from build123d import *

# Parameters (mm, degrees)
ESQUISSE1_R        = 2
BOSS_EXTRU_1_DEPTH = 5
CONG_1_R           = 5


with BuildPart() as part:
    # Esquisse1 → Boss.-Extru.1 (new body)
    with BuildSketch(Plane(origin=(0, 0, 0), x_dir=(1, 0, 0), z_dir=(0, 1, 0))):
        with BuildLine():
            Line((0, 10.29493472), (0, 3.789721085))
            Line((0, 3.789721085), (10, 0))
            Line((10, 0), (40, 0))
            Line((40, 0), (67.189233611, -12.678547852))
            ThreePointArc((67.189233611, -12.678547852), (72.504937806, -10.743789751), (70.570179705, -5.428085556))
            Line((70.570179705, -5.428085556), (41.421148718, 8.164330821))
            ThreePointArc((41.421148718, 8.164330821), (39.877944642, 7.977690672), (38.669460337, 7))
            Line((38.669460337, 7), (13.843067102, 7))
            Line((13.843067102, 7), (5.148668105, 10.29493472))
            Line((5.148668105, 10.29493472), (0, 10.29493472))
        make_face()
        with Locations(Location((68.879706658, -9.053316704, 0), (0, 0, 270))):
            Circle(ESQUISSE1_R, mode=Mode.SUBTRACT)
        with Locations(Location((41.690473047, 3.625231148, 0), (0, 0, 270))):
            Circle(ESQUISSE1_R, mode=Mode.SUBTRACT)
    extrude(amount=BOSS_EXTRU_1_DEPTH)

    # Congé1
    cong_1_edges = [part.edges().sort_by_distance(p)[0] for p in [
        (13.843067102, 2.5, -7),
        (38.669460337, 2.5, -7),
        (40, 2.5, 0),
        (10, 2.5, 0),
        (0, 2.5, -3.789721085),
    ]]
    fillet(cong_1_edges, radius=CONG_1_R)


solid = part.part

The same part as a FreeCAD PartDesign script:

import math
import FreeCAD as App
import Part
import Sketcher
Q = App.Units.Quantity


def edges_at(feature, points):
    """Names of the edges that pass closest to the given points."""
    edges = feature.Shape.Edges
    near = lambda p: min(range(len(edges)), key=lambda i: edges[i].distToShape(Part.Vertex(*p))[0])
    return sorted({f"Edge{near(p) + 1}" for p in points})

doc = App.newDocument("Part")
body = doc.addObject("PartDesign::Body", "Body")

# Sketch on XZ plane
sketch1 = doc.addObject("Sketcher::SketchObject", "Sketch")
body.addObject(sketch1)
sketch1.AttachmentSupport = (doc.XZ_Plane, [""])
sketch1.MapMode = "FlatFace"
sketch1.addGeometry(Part.LineSegment(App.Vector(0, -10.3, 0), App.Vector(0, -3.8, 0)), False)
sketch1.addGeometry(Part.LineSegment(App.Vector(0, -3.8, 0), App.Vector(10, 0, 0)), False)
sketch1.addGeometry(Part.LineSegment(App.Vector(10, 0, 0), App.Vector(40, 0, 0)), False)
sketch1.addGeometry(Part.LineSegment(App.Vector(40, 0, 0), App.Vector(67.2, 12.7, 0)), False)
sketch1.addGeometry(Part.ArcOfCircle(Part.Circle(App.Vector(68.9, 9.1, 0), App.Vector(0, 0, 1), 4), math.radians(-65), math.radians(115)), False)
sketch1.addGeometry(Part.LineSegment(App.Vector(70.6, 5.4, 0), App.Vector(41.4, -8.2, 0)), False)
sketch1.addGeometry(Part.ArcOfCircle(Part.Circle(App.Vector(41, -5.4, 0), App.Vector(0, 0, 1), 2.8), math.radians(-145), math.radians(-81)), False)
sketch1.addGeometry(Part.LineSegment(App.Vector(38.7, -7, 0), App.Vector(13.8, -7, 0)), False)
sketch1.addGeometry(Part.LineSegment(App.Vector(13.8, -7, 0), App.Vector(5.1, -10.3, 0)), False)
sketch1.addGeometry(Part.LineSegment(App.Vector(5.1, -10.3, 0), App.Vector(0, -10.3, 0)), False)
sketch1.addGeometry(Part.Circle(App.Vector(68.9, 9.1, 0), App.Vector(0, 0, 1), 2), False)
sketch1.addGeometry(Part.Circle(App.Vector(41.7, -3.6, 0), App.Vector(0, 0, 1), 2), False)
sketch1.addConstraint(Sketcher.Constraint("Coincident", 0, 2, 1, 1))
sketch1.addConstraint(Sketcher.Constraint("Coincident", 1, 2, 2, 1))
sketch1.addConstraint(Sketcher.Constraint("Coincident", 2, 2, 3, 1))
sketch1.addConstraint(Sketcher.Constraint("Tangent", 3, 2, 4, 2))
sketch1.addConstraint(Sketcher.Constraint("Tangent", 4, 1, 5, 1))
sketch1.addConstraint(Sketcher.Constraint("Coincident", 5, 2, 6, 2))
sketch1.addConstraint(Sketcher.Constraint("Coincident", 6, 1, 7, 1))
sketch1.addConstraint(Sketcher.Constraint("Coincident", 7, 2, 8, 1))
sketch1.addConstraint(Sketcher.Constraint("Coincident", 8, 2, 9, 1))
sketch1.addConstraint(Sketcher.Constraint("Coincident", 9, 2, 0, 1))
sketch1.addConstraint(Sketcher.Constraint("Vertical", 0))
sketch1.addConstraint(Sketcher.Constraint("Horizontal", 2))
sketch1.addConstraint(Sketcher.Constraint("Horizontal", 7))
sketch1.addConstraint(Sketcher.Constraint("Horizontal", 9))
sketch1.addConstraint(Sketcher.Constraint("Coincident", 10, 3, 4, 3))
sketch1.addConstraint(Sketcher.Constraint("Equal", 10, 11))
sketch1.addConstraint(Sketcher.Constraint("PointOnObject", 0, 2, -2))
sketch1.addConstraint(Sketcher.Constraint("PointOnObject", 1, 2, -1))
sketch1.addConstraint(Sketcher.Constraint("Parallel", 3, 5))
sketch1.addConstraint(Sketcher.Constraint("Parallel", 1, 8))
sketch1.addConstraint(Sketcher.Constraint("Diameter", 10, 4.0))
sketch1.addConstraint(Sketcher.Constraint("Radius", 4, 4.0))
sketch1.addConstraint(Sketcher.Constraint("DistanceX", 2, 1, 2, 2, 30.0))
sketch1.addConstraint(Sketcher.Constraint("Angle", 3, Q("25 deg")))
sketch1.addConstraint(Sketcher.Constraint("Distance", 3, 30.0))
sketch1.addConstraint(Sketcher.Constraint("DistanceX", -1, 1, 1, 2, 10.0))
sketch1.addConstraint(Sketcher.Constraint("DistanceY", 6, 1, -1, 1, 7.0))
sketch1.addConstraint(Sketcher.Constraint("Radius", 6, 2.813095))
sketch1.addConstraint(Sketcher.Constraint("DistanceX", 9, 2, 9, 1, 5.148668))
sketch1.addConstraint(Sketcher.Constraint("DistanceY", 5, 2, 11, 3, 4.5391))
sketch1.addConstraint(Sketcher.Constraint("DistanceX", 8, 2, 7, 2, 8.694399))
sketch1.addConstraint(Sketcher.Constraint("DistanceX", 7, 2, 7, 1, 24.826393))
sketch1.addConstraint(Sketcher.Constraint("DistanceY", 0, 1, 0, 2, 6.505214))
sketch1.addConstraint(Sketcher.Constraint("DistanceY", 11, 3, -1, 1, 3.625231))
sketch1.addConstraint(Sketcher.Constraint("DistanceX", 6, 3, 11, 3, 0.71631))
pad1 = doc.addObject("PartDesign::Pad", "Pad")
body.addObject(pad1)
pad1.Profile = sketch1
pad1.Length = 5
pad1.Reversed = True
doc.recompute()

fillet = doc.addObject("PartDesign::Fillet", "Fillet")
body.addObject(fillet)
fillet.Base = (pad1, edges_at(pad1, [
    (13.843, 2.5, -7),
    (38.669, 2.5, -7),
    (40, 2.5, 0),
    (10, 2.5, 0),
    (0, 2.5, -3.79),
]))
fillet.Radius = 5

doc.recompute()
